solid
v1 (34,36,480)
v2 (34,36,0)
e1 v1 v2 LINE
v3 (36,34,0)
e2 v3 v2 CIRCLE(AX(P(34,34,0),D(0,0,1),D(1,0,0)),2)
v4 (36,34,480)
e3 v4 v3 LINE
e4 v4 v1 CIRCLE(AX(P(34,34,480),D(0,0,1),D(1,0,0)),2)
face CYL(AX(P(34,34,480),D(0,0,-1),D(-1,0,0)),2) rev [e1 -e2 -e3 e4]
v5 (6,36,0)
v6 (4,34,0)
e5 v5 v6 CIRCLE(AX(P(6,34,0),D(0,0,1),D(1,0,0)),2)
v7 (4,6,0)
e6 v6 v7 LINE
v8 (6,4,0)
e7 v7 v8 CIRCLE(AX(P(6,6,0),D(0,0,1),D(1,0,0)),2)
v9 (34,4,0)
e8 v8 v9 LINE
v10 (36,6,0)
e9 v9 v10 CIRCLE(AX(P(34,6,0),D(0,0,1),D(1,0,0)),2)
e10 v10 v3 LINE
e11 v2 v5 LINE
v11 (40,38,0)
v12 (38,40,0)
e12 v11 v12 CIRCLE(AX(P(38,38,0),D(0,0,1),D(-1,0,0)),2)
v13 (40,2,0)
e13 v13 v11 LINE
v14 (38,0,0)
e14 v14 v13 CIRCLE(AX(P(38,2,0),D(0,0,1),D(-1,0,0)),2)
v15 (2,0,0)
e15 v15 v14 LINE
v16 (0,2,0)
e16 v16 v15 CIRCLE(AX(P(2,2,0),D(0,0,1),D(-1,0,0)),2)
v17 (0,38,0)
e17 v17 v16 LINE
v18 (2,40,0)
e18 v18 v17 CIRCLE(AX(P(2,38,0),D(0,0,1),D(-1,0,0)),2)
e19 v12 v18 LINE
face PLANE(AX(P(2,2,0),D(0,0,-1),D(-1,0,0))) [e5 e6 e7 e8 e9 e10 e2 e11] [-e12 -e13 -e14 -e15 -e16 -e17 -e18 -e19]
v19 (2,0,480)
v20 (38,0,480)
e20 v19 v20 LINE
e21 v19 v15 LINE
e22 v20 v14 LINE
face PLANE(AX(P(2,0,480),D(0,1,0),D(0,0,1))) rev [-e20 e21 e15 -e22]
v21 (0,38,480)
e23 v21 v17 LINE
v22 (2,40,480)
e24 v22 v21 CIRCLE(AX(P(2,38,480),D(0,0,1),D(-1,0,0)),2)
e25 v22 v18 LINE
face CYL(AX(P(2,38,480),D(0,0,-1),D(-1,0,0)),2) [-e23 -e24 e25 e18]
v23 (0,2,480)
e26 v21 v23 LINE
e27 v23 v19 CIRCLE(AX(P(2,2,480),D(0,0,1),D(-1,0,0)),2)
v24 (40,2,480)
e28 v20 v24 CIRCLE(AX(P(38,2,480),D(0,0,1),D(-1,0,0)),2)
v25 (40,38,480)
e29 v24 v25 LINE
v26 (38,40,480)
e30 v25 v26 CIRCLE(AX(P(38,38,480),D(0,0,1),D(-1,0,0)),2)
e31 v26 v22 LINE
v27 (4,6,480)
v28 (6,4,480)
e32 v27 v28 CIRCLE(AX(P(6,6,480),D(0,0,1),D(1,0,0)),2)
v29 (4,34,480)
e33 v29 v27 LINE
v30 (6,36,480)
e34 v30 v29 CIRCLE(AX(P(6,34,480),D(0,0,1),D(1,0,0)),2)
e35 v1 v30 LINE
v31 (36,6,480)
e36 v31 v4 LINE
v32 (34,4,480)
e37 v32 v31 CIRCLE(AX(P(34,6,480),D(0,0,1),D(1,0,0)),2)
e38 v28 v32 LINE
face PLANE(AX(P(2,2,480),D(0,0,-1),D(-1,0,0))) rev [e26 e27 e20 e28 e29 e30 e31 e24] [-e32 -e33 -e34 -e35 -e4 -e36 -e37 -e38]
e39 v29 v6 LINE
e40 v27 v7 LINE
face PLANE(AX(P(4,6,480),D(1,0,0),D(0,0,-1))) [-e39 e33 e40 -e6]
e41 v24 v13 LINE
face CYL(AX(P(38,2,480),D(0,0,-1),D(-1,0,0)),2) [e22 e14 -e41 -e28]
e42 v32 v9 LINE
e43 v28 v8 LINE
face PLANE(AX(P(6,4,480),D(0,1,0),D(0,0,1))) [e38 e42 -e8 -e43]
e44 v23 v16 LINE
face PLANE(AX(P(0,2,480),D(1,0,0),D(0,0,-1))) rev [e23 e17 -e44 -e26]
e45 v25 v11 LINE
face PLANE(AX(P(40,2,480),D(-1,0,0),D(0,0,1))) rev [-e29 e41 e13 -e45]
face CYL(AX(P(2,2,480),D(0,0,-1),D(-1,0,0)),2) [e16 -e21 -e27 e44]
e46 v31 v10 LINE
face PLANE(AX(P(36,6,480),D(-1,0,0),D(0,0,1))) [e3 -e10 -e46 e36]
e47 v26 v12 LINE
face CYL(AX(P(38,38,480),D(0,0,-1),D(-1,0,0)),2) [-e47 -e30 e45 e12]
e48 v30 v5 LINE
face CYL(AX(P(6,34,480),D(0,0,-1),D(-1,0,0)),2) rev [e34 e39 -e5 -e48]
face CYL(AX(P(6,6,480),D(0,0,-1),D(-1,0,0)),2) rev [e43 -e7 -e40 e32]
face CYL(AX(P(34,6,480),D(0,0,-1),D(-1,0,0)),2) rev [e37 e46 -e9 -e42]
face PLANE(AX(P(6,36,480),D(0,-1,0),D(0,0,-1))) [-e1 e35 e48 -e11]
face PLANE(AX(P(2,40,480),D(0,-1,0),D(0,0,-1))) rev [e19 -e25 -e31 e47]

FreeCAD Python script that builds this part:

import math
import FreeCAD as App
import Part
import Sketcher

doc = App.newDocument("Part")
params = doc.addObject("Spreadsheet::Sheet", "Params")
for row, (alias, value) in enumerate([
    ("sketch1_radius", "2 mm"),
    ("sketch1_width", "36 mm"),
    ("sketch1_width2", "28 mm"),
    ("pad1_length", "480 mm"),
], start=1):
    params.set(f"A{row}", alias)
    params.set(f"B{row}", "=" + value)
    params.setAlias(f"B{row}", alias)

body = doc.addObject("PartDesign::Body", "Body")

sketch1 = body.newObject("Sketcher::SketchObject", "Sketch")
sketch1.AttachmentSupport = (doc.getObject("XY_Plane"), [""])
sketch1.MapMode = "FlatFace"
sketch1.addGeometry(Part.LineSegment(App.Vector(2, 0, 0), App.Vector(38, 0, 0)), False)
sketch1.addGeometry(Part.ArcOfCircle(Part.Circle(App.Vector(38, 2, 0), App.Vector(0, 0, 1), 2), math.radians(-90), math.radians(0)), False)
sketch1.addGeometry(Part.LineSegment(App.Vector(40, 2, 0), App.Vector(40, 38, 0)), False)
sketch1.addGeometry(Part.ArcOfCircle(Part.Circle(App.Vector(38, 38, 0), App.Vector(0, 0, 1), 2), math.radians(0), math.radians(90)), False)
sketch1.addGeometry(Part.LineSegment(App.Vector(38, 40, 0), App.Vector(2, 40, 0)), False)
sketch1.addGeometry(Part.ArcOfCircle(Part.Circle(App.Vector(2, 38, 0), App.Vector(0, 0, 1), 2), math.radians(90), math.radians(180)), False)
sketch1.addGeometry(Part.LineSegment(App.Vector(0, 38, 0), App.Vector(0, 2, 0)), False)
sketch1.addGeometry(Part.ArcOfCircle(Part.Circle(App.Vector(2, 2, 0), App.Vector(0, 0, 1), 2), math.radians(-180), math.radians(-90)), False)
sketch1.addGeometry(Part.LineSegment(App.Vector(34, 4, 0), App.Vector(6, 4, 0)), False)
sketch1.addGeometry(Part.ArcOfCircle(Part.Circle(App.Vector(6, 6, 0), App.Vector(0, 0, 1), 2), math.radians(-180), math.radians(-90)), False)
sketch1.addGeometry(Part.LineSegment(App.Vector(4, 6, 0), App.Vector(4, 34, 0)), False)
sketch1.addGeometry(Part.ArcOfCircle(Part.Circle(App.Vector(6, 34, 0), App.Vector(0, 0, 1), 2), math.radians(90), math.radians(180)), False)
sketch1.addGeometry(Part.LineSegment(App.Vector(6, 36, 0), App.Vector(34, 36, 0)), False)
sketch1.addGeometry(Part.ArcOfCircle(Part.Circle(App.Vector(34, 34, 0), App.Vector(0, 0, 1), 2), math.radians(0), math.radians(90)), False)
sketch1.addGeometry(Part.LineSegment(App.Vector(36, 34, 0), App.Vector(36, 6, 0)), False)
sketch1.addGeometry(Part.ArcOfCircle(Part.Circle(App.Vector(34, 6, 0), App.Vector(0, 0, 1), 2), math.radians(-90), math.radians(0)), False)
sketch1.addConstraint(Sketcher.Constraint("Tangent", 0, 2, 1, 1))
sketch1.addConstraint(Sketcher.Constraint("Tangent", 1, 2, 2, 1))
sketch1.addConstraint(Sketcher.Constraint("Tangent", 2, 2, 3, 1))
sketch1.addConstraint(Sketcher.Constraint("Tangent", 3, 2, 4, 1))
sketch1.addConstraint(Sketcher.Constraint("Tangent", 4, 2, 5, 1))
sketch1.addConstraint(Sketcher.Constraint("Tangent", 5, 2, 6, 1))
sketch1.addConstraint(Sketcher.Constraint("Tangent", 6, 2, 7, 1))
sketch1.addConstraint(Sketcher.Constraint("Tangent", 7, 2, 0, 1))
sketch1.addConstraint(Sketcher.Constraint("Tangent", 8, 2, 9, 2))
sketch1.addConstraint(Sketcher.Constraint("Tangent", 9, 1, 10, 1))
sketch1.addConstraint(Sketcher.Constraint("Tangent", 10, 2, 11, 2))
sketch1.addConstraint(Sketcher.Constraint("Tangent", 11, 1, 12, 1))
sketch1.addConstraint(Sketcher.Constraint("Tangent", 12, 2, 13, 2))
sketch1.addConstraint(Sketcher.Constraint("Tangent", 13, 1, 14, 1))
sketch1.addConstraint(Sketcher.Constraint("Tangent", 14, 2, 15, 2))
sketch1.addConstraint(Sketcher.Constraint("Tangent", 15, 1, 8, 1))
sketch1.addConstraint(Sketcher.Constraint("Horizontal", 0))
sketch1.addConstraint(Sketcher.Constraint("Vertical", 2))
sketch1.addConstraint(Sketcher.Constraint("Horizontal", 4))
sketch1.addConstraint(Sketcher.Constraint("Vertical", 6))
sketch1.addConstraint(Sketcher.Constraint("Horizontal", 8))
sketch1.addConstraint(Sketcher.Constraint("Vertical", 10))
sketch1.addConstraint(Sketcher.Constraint("Horizontal", 12))
sketch1.addConstraint(Sketcher.Constraint("Vertical", 14))
sketch1.addConstraint(Sketcher.Constraint("Equal", 1, 3))
sketch1.addConstraint(Sketcher.Constraint("Equal", 3, 5))
sketch1.addConstraint(Sketcher.Constraint("Equal", 5, 7))
sketch1.addConstraint(Sketcher.Constraint("Equal", 7, 9))
sketch1.addConstraint(Sketcher.Constraint("Equal", 9, 11))
sketch1.addConstraint(Sketcher.Constraint("Equal", 11, 13))
sketch1.addConstraint(Sketcher.Constraint("Equal", 13, 15))
sketch1.addConstraint(Sketcher.Constraint("PointOnObject", 0, 2, -1))
sketch1.addConstraint(Sketcher.Constraint("PointOnObject", 5, 2, -2))
sketch1.addConstraint(Sketcher.Constraint("Equal", 4, 2))
sketch1.addConstraint(Sketcher.Constraint("Equal", 12, 10))
sketch1.addConstraint(Sketcher.Constraint("Radius", 1, 2.0))
sketch1.addConstraint(Sketcher.Constraint("DistanceX", 0, 1, 0, 2, 36.0))
sketch1.addConstraint(Sketcher.Constraint("DistanceX", 8, 2, 8, 1, 28.0))
sketch1.addConstraint(Sketcher.Constraint("DistanceX", -1, 1, 9, 3, 6.0))
sketch1.addConstraint(Sketcher.Constraint("DistanceY", -1, 1, 9, 3, 6.0))
sketch1.setExpression("Constraints[35]", "Params.sketch1_radius")
sketch1.setExpression("Constraints[36]", "Params.sketch1_width")
sketch1.setExpression("Constraints[37]", "Params.sketch1_width2")
pad1 = body.newObject("PartDesign::Pad", "Pad")
pad1.Profile = sketch1
pad1.setExpression("Length", "Params.pad1_length")

doc.recompute()
